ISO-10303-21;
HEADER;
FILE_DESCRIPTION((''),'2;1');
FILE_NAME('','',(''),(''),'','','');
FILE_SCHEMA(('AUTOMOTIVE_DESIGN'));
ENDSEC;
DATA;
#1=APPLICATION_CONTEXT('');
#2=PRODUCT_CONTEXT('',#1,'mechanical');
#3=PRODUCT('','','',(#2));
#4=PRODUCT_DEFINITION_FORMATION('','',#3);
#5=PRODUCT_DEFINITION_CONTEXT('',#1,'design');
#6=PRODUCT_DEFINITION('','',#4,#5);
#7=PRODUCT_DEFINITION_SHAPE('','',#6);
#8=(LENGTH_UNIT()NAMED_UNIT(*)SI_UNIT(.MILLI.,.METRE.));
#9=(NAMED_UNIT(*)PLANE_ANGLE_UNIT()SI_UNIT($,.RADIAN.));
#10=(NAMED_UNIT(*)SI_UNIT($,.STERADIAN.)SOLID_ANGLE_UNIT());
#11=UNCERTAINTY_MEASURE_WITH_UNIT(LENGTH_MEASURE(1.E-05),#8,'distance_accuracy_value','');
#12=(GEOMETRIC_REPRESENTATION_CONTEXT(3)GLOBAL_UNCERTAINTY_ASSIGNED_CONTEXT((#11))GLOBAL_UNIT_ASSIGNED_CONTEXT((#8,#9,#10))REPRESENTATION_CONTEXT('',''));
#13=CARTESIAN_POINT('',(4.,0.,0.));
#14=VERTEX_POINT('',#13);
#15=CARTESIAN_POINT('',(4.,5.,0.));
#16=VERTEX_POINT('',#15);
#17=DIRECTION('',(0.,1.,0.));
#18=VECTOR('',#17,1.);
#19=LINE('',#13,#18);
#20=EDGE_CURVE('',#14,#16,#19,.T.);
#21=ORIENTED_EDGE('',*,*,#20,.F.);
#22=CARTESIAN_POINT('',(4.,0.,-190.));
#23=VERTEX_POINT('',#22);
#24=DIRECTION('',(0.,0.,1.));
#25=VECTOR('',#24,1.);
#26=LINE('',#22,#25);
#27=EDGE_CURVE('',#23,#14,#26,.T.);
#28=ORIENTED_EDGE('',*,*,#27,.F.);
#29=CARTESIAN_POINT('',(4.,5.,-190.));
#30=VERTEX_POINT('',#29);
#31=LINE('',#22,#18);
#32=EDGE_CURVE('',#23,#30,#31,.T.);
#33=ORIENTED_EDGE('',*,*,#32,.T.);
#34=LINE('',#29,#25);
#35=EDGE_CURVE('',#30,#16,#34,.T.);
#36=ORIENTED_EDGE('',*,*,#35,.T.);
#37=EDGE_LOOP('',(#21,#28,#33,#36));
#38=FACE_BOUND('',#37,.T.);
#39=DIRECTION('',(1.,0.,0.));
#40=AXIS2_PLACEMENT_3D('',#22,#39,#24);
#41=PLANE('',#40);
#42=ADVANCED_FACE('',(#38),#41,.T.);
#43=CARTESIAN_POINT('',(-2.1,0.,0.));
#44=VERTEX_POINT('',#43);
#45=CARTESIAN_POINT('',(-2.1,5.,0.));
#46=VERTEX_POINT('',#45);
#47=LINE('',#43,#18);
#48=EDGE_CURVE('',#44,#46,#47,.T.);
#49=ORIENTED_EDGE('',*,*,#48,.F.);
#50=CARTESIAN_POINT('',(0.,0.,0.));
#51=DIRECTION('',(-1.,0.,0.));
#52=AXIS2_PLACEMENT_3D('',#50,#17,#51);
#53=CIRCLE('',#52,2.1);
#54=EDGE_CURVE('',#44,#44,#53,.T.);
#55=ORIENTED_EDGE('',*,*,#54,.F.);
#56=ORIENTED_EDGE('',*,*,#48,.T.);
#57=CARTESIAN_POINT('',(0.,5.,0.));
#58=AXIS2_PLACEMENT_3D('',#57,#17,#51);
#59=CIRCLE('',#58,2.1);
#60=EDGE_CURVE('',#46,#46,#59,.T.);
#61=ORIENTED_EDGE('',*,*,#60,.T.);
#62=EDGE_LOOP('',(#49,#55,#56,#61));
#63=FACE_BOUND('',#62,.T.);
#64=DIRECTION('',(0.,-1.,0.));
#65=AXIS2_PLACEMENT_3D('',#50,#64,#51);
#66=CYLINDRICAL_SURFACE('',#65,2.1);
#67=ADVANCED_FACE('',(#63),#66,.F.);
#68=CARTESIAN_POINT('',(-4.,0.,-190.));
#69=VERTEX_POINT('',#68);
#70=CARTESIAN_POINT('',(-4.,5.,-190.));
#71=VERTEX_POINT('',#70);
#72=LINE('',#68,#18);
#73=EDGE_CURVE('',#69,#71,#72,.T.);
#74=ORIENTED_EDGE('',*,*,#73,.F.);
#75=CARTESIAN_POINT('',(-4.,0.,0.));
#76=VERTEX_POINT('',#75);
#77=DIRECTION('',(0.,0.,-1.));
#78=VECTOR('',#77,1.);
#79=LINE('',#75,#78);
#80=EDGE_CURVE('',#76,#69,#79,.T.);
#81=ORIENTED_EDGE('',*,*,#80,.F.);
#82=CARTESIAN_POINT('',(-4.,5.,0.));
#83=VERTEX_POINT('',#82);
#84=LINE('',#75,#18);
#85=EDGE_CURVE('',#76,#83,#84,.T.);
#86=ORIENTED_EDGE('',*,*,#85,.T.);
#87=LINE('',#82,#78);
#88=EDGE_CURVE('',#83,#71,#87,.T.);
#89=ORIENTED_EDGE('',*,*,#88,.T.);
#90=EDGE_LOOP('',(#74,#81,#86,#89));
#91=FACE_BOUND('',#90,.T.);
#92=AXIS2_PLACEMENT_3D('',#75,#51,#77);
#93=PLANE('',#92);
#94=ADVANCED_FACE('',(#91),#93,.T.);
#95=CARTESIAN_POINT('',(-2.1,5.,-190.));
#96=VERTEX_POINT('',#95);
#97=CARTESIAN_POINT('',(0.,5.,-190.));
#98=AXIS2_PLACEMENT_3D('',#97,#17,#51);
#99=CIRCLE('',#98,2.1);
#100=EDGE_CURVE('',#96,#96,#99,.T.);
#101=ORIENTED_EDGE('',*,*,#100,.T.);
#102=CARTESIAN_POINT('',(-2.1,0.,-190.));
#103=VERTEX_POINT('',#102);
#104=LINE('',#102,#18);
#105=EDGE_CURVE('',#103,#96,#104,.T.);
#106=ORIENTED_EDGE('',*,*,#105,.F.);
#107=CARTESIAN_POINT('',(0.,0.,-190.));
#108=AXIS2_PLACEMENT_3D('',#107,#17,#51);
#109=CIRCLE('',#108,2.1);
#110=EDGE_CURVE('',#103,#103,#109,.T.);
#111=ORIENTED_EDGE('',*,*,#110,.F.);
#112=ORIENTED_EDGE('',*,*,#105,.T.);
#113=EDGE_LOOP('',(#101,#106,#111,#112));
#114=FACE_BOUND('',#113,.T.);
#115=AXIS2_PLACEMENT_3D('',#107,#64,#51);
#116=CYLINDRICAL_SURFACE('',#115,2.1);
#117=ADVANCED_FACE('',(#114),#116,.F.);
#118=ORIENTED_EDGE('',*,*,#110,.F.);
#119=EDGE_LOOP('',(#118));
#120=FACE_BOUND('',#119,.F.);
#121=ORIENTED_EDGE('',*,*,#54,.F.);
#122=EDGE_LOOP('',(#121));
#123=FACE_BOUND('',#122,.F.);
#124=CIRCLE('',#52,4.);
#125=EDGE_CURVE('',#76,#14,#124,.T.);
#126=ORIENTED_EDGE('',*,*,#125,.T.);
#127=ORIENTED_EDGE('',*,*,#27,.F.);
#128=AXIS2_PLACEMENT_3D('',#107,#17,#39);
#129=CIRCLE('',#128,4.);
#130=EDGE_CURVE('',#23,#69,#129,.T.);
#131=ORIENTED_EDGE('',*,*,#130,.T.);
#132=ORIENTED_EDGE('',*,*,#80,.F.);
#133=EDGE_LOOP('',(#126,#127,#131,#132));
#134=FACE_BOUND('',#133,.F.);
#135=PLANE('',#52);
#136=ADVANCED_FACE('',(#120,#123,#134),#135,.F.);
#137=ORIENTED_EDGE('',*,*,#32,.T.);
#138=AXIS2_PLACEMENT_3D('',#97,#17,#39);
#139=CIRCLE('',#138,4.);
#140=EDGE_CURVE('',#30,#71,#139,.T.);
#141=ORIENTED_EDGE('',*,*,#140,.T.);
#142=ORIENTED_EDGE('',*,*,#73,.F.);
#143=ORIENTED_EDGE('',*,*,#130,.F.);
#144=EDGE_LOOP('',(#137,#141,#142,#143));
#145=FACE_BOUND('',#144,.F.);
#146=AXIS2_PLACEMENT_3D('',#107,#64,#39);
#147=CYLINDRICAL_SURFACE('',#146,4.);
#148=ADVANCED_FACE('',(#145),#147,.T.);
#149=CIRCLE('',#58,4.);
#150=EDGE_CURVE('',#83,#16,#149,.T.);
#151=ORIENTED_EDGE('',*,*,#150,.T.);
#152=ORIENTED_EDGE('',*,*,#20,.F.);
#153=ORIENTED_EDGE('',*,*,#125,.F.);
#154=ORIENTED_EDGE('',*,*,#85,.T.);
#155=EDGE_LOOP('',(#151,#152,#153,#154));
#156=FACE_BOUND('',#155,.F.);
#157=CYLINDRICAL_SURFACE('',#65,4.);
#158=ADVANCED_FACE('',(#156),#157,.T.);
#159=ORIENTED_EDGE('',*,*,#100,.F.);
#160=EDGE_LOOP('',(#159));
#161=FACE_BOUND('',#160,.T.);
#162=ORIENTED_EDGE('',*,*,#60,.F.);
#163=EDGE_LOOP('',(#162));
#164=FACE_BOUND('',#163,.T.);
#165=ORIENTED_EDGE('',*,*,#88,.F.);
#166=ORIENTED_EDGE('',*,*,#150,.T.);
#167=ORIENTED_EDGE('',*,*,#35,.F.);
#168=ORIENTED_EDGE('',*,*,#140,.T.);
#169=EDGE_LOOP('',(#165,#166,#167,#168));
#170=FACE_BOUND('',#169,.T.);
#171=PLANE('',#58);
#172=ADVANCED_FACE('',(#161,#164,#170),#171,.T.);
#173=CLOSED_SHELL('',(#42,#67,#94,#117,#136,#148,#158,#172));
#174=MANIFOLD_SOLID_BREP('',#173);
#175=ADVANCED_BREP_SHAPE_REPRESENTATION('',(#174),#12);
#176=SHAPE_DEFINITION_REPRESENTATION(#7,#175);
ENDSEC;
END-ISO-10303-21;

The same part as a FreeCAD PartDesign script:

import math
import FreeCAD as App
import Part
import Sketcher
Q = App.Units.Quantity

doc = App.newDocument("Part")
body = doc.addObject("PartDesign::Body", "Body")

sketch1 = doc.addObject("Sketcher::SketchObject", "Sketch")
body.addObject(sketch1)
sketch1.AttachmentSupport = (doc.XZ_Plane, [""])
sketch1.MapMode = "FlatFace"
sketch1.addGeometry([
    Part.LineSegment(App.Vector(-4, -190, 0), App.Vector(-4, 0, 0)),
    Part.ArcOfCircle(Part.Circle(App.Vector(0, 0, 0), App.Vector(0, 0, 1), 4), math.radians(0), math.radians(180)),
    Part.LineSegment(App.Vector(4, 0, 0), App.Vector(4, -190, 0)),
    Part.ArcOfCircle(Part.Circle(App.Vector(0, -190, 0), App.Vector(0, 0, 1), 4), math.radians(180), math.radians(360)),
    Part.Circle(App.Vector(0, -190, 0), App.Vector(0, 0, 1), 2.1),
    Part.Circle(App.Vector(0, 0, 0), App.Vector(0, 0, 1), 2.1),
], False)
sketch1.addConstraint([
    Sketcher.Constraint("Tangent", 0, 2, 1, 2),
    Sketcher.Constraint("Tangent", 1, 1, 2, 1),
    Sketcher.Constraint("Tangent", 2, 2, 3, 2),
    Sketcher.Constraint("Tangent", 3, 1, 0, 1),
    Sketcher.Constraint("Vertical", 0),
    Sketcher.Constraint("Vertical", 2),
    Sketcher.Constraint("Coincident", 1, 3, -1, 1),
    Sketcher.Constraint("Coincident", 5, 3, -1, 1),
    Sketcher.Constraint("Coincident", 4, 3, 3, 3),
    Sketcher.Constraint("Equal", 4, 5),
    Sketcher.Constraint("Radius", 1, Q("4 mm")),
    Sketcher.Constraint("Diameter", 4, Q("4.2 mm")),
    Sketcher.Constraint("DistanceY", 0, 1, 0, 2, Q("190 mm")),
])
pad1 = doc.addObject("PartDesign::Pad", "Pad")
body.addObject(pad1)
pad1.Profile = sketch1
pad1.Length = 5
pad1.Reversed = True

doc.recompute()
